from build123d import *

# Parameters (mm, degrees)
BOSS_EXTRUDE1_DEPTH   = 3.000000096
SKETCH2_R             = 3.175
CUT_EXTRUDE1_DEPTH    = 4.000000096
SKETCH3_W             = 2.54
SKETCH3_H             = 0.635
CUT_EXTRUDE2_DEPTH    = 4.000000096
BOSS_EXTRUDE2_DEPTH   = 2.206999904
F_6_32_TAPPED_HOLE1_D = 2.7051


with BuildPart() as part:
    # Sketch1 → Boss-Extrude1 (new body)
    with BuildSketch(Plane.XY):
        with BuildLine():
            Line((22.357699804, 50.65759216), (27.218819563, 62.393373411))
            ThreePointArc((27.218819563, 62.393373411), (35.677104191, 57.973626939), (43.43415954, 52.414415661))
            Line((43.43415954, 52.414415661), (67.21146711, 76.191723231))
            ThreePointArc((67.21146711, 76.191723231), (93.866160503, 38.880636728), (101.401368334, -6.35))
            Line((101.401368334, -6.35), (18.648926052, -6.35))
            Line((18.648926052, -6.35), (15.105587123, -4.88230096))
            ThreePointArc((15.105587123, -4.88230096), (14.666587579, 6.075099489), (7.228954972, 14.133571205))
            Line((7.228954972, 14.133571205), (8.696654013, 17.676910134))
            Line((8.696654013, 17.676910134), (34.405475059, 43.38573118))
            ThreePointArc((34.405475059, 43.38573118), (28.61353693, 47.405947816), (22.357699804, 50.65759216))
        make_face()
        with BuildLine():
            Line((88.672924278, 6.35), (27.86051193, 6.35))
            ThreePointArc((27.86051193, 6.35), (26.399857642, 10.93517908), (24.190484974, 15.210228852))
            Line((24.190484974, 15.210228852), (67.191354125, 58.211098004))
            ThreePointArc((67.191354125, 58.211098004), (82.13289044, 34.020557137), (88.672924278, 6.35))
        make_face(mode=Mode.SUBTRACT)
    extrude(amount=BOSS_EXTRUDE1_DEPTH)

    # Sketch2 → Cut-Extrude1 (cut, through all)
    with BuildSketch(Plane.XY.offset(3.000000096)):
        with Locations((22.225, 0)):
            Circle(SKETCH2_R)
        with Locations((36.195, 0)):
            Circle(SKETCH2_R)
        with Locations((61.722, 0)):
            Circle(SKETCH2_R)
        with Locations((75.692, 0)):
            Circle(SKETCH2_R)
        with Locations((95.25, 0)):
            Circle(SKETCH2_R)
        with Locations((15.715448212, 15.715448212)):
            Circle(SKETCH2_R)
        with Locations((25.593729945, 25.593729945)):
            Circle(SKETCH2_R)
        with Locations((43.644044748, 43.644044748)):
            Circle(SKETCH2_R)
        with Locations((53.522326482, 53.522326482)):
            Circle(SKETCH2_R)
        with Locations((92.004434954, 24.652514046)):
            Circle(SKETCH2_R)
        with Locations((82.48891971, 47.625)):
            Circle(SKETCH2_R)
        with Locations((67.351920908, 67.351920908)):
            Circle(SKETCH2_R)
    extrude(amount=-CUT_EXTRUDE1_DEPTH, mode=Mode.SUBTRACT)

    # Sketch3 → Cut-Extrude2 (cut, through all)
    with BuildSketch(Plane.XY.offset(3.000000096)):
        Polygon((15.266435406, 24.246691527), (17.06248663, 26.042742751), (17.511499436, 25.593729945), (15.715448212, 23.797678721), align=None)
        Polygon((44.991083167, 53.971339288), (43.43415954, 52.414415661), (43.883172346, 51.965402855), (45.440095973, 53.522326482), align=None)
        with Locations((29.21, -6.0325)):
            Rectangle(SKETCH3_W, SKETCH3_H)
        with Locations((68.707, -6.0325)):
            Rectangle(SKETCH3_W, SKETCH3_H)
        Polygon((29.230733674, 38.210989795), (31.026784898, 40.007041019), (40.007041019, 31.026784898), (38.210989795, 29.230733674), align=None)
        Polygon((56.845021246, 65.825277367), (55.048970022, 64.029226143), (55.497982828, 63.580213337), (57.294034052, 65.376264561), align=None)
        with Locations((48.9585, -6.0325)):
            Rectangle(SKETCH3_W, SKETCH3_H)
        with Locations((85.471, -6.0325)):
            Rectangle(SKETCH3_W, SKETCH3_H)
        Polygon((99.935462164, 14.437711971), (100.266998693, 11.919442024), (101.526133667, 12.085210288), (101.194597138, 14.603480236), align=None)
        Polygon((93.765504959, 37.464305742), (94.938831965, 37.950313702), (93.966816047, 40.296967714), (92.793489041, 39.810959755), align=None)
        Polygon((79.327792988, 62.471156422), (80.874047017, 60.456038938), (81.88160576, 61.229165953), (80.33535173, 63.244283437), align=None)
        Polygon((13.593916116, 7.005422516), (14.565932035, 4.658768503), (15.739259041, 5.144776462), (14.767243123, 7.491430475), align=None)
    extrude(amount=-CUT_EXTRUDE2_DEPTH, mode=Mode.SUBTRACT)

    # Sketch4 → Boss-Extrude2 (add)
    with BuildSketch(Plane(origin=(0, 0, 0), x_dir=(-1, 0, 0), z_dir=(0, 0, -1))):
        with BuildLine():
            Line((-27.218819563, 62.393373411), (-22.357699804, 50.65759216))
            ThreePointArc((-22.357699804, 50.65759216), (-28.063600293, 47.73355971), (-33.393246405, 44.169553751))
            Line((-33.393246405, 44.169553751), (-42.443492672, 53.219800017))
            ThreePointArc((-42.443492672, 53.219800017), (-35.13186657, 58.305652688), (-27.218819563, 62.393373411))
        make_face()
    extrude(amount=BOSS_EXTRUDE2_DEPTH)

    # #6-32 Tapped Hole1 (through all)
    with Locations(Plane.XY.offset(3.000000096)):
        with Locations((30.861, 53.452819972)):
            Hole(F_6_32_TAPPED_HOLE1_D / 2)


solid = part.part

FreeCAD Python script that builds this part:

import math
import FreeCAD as App
import Part
import Sketcher
Q = App.Units.Quantity


def add_polygon(sketch, points):
    """Adds a closed chain of lines whose ends are joined by coincident constraints."""
    first, n = sketch.GeometryCount, len(points)
    for a, b in zip(points, points[1:] + points[:1]):
        sketch.addGeometry(Part.LineSegment(App.Vector(*a, 0), App.Vector(*b, 0)), False)
    for i in range(n):
        sketch.addConstraint(Sketcher.Constraint("Coincident", first + i, 2, first + (i + 1) % n, 1))

doc = App.newDocument("Part")
body = doc.addObject("PartDesign::Body", "Body")

# Sketch on XY plane
sketch1 = body.newObject("Sketcher::SketchObject", "Sketch")
sketch1.AttachmentSupport = (doc.getObject("XY_Plane"), [""])
sketch1.MapMode = "FlatFace"
sketch1.addGeometry([
    Part.LineSegment(App.Vector(27.2, 62.4, 0), App.Vector(22.4, 50.7, 0)),  # 0
    Part.ArcOfCircle(Part.Circle(App.Vector(0, 0, 0), App.Vector(0, 0, 1), 55.4), math.radians(51.59), math.radians(66.19)),  # 1
    Part.LineSegment(App.Vector(34.4, 43.4, 0), App.Vector(8.7, 17.7, 0)),  # 2
    Part.LineSegment(App.Vector(8.7, 17.7, 0), App.Vector(7.2, 14.1, 0)),  # 3
    Part.ArcOfCircle(Part.Circle(App.Vector(0, 0, 0), App.Vector(0, 0, 1), 15.9), math.radians(-18), math.radians(63)),  # 4
    Part.LineSegment(App.Vector(15.1, -4.9, 0), App.Vector(18.6, -6.3, 0)),  # 5
    Part.LineSegment(App.Vector(18.6, -6.3, 0), App.Vector(101.4, -6.3, 0)),  # 6
    Part.ArcOfCircle(Part.Circle(App.Vector(0, 0, 0), App.Vector(0, 0, 1), 101.6), math.radians(-4), math.radians(49)),  # 7
    Part.LineSegment(App.Vector(67.2, 76.2, 0), App.Vector(43.4, 52.4, 0)),  # 8
    Part.ArcOfCircle(Part.Circle(App.Vector(0, 0, 0), App.Vector(0, 0, 1), 68.1), math.radians(50.35), math.radians(66.43)),  # 9
    Part.LineSegment(App.Vector(88.7, 6.3, 0), App.Vector(27.9, 6.3, 0)),  # 10
    Part.ArcOfCircle(Part.Circle(App.Vector(0, 0, 0), App.Vector(0, 0, 1), 28.6), math.radians(12.84), math.radians(32.16)),  # 11
    Part.LineSegment(App.Vector(24.2, 15.2, 0), App.Vector(67.2, 58.2, 0)),  # 12
    Part.ArcOfCircle(Part.Circle(App.Vector(0, 0, 0), App.Vector(0, 0, 1), 88.9), math.radians(4), math.radians(41)),  # 13
], False)
sketch1.addConstraint([
    Sketcher.Constraint("Coincident", 0, 2, 1, 2),
    Sketcher.Constraint("Coincident", 1, 1, 2, 1),
    Sketcher.Constraint("Coincident", 2, 2, 3, 1),
    Sketcher.Constraint("Coincident", 3, 2, 4, 2),
    Sketcher.Constraint("Coincident", 4, 1, 5, 1),
    Sketcher.Constraint("Coincident", 5, 2, 6, 1),
    Sketcher.Constraint("Coincident", 6, 2, 7, 1),
    Sketcher.Constraint("Coincident", 7, 2, 8, 1),
    Sketcher.Constraint("Coincident", 8, 2, 9, 1),
    Sketcher.Constraint("Coincident", 9, 2, 0, 1),
    Sketcher.Constraint("Coincident", 10, 2, 11, 1),
    Sketcher.Constraint("Coincident", 11, 2, 12, 1),
    Sketcher.Constraint("Coincident", 12, 2, 13, 2),
    Sketcher.Constraint("Coincident", 13, 1, 10, 1),
    Sketcher.Constraint("Horizontal", 6),
    Sketcher.Constraint("Horizontal", 10),
    Sketcher.Constraint("Coincident", 1, 3, -1, 1),
    Sketcher.Constraint("Coincident", 4, 3, -1, 1),
    Sketcher.Constraint("Coincident", 7, 3, -1, 1),
    Sketcher.Constraint("Coincident", 9, 3, -1, 1),
    Sketcher.Constraint("Coincident", 11, 3, -1, 1),
    Sketcher.Constraint("Coincident", 13, 3, -1, 1),
    Sketcher.Constraint("Parallel", 0, 3),
    Sketcher.Constraint("Perpendicular", 3, 5),
    Sketcher.Constraint("Parallel", 2, 8),
    Sketcher.Constraint("Parallel", 8, 12),
    Sketcher.Constraint("Equal", 3, 5),
    Sketcher.Constraint("Radius", 7, Q("4 in")),
    Sketcher.Constraint("Radius", 13, Q("3.5 in")),
    Sketcher.Constraint("Radius", 1, Q("2.18 in")),
    Sketcher.Constraint("Radius", 9, Q("2.68 in")),
    Sketcher.Constraint("Angle", 2, Q("-135 deg")),
    Sketcher.Constraint("Radius", 4, Q("0.625 in")),
    Sketcher.Constraint("Radius", 11, Q("1.125 in")),
    Sketcher.Constraint("Angle", 0, Q("-112.5 deg")),
    Sketcher.Constraint("DistanceY", 5, 2, 10, 2, Q("0.5 in")),
    Sketcher.Constraint("DistanceY", 5, 2, -1, 1, Q("0.25 in")),
    Sketcher.Constraint("DistanceX", -1, 1, 0, 2, 22.3577),
    Sketcher.Constraint("DistanceY", 4, 1, -1, 1, 4.882301),
    Sketcher.Constraint("DistanceY", -1, 1, 12, 2, 58.211098),
    Sketcher.Constraint("DistanceX", 7, 2, 6, 2, 34.189901),
    Sketcher.Constraint("DistanceY", -1, 1, 1, 1, 43.385731),
])
pad1 = body.newObject("PartDesign::Pad", "Pad")
pad1.Profile = sketch1
pad1.Length = 3

# Sketch on XY plane
sketch2 = body.newObject("Sketcher::SketchObject", "Sketch001")
sketch2.AttachmentSupport = (doc.getObject("XY_Plane"), [""])
sketch2.MapMode = "FlatFace"
sketch2.AttachmentOffset = App.Placement(App.Vector(0, 0, 3), App.Rotation())
sketch2.addGeometry([
    Part.Circle(App.Vector(22.2, 0, 0), App.Vector(0, 0, 1), 3.2),  # 0
    Part.Circle(App.Vector(36.2, 0, 0), App.Vector(0, 0, 1), 3.2),  # 1
    Part.Circle(App.Vector(61.7, 0, 0), App.Vector(0, 0, 1), 3.2),  # 2
    Part.Circle(App.Vector(75.7, 0, 0), App.Vector(0, 0, 1), 3.2),  # 3
    Part.Circle(App.Vector(95.2, 0, 0), App.Vector(0, 0, 1), 3.2),  # 4
    Part.Circle(App.Vector(15.7, 15.7, 0), App.Vector(0, 0, 1), 3.2),  # 5
    Part.Circle(App.Vector(25.6, 25.6, 0), App.Vector(0, 0, 1), 3.2),  # 6
    Part.Circle(App.Vector(43.6, 43.6, 0), App.Vector(0, 0, 1), 3.2),  # 7
    Part.Circle(App.Vector(53.5, 53.5, 0), App.Vector(0, 0, 1), 3.2),  # 8
    Part.Circle(App.Vector(92, 24.7, 0), App.Vector(0, 0, 1), 3.2),  # 9
    Part.Circle(App.Vector(82.5, 47.6, 0), App.Vector(0, 0, 1), 3.2),  # 10
    Part.Circle(App.Vector(67.4, 67.4, 0), App.Vector(0, 0, 1), 3.2),  # 11
], False)
sketch2.addConstraint([
    Sketcher.Constraint("Equal", 0, 1),
    Sketcher.Constraint("Equal", 1, 2),
    Sketcher.Constraint("Equal", 2, 3),
    Sketcher.Constraint("Equal", 3, 4),
    Sketcher.Constraint("Equal", 4, 5),
    Sketcher.Constraint("Equal", 5, 6),
    Sketcher.Constraint("Equal", 6, 7),
    Sketcher.Constraint("Equal", 7, 8),
    Sketcher.Constraint("Equal", 8, 9),
    Sketcher.Constraint("Equal", 9, 10),
    Sketcher.Constraint("Equal", 10, 11),
    Sketcher.Constraint("PointOnObject", 0, 3, -1),
    Sketcher.Constraint("PointOnObject", 1, 3, -1),
    Sketcher.Constraint("PointOnObject", 2, 3, -1),
    Sketcher.Constraint("PointOnObject", 3, 3, -1),
    Sketcher.Constraint("PointOnObject", 4, 3, -1),
    Sketcher.Constraint("Diameter", 0, Q("0.25 in")),
    Sketcher.Constraint("DistanceX", -1, 1, 2, 3, Q("2.43 in")),
    Sketcher.Constraint("DistanceX", -1, 1, 3, 3, Q("2.98 in")),
    Sketcher.Constraint("DistanceX", -1, 1, 4, 3, Q("3.75 in")),
    Sketcher.Constraint("DistanceX", 0, 3, 1, 3, Q("0.55 in")),
    Sketcher.Constraint("DistanceX", -1, 1, 0, 3, Q("0.875 in")),
    Sketcher.Constraint("DistanceY", -1, 1, 10, 3, Q("1.875 in")),
    Sketcher.Constraint("DistanceX", 11, 3, 10, 3, 15.136999),
    Sketcher.Constraint("DistanceX", -1, 1, 5, 3, 15.715448),
    Sketcher.Constraint("DistanceY", -1, 1, 5, 3, 15.715448),
    Sketcher.Constraint("DistanceX", -1, 1, 6, 3, 25.59373),
    Sketcher.Constraint("DistanceY", -1, 1, 6, 3, 25.59373),
    Sketcher.Constraint("DistanceX", -1, 1, 10, 3, 82.48892),
    Sketcher.Constraint("DistanceY", -1, 1, 11, 3, 67.351921),
    Sketcher.Constraint("DistanceX", 7, 3, 8, 3, 9.878282),
    Sketcher.Constraint("DistanceY", 7, 3, 8, 3, 9.878282),
    Sketcher.Constraint("DistanceX", 5, 3, 8, 3, 37.806878),
    Sketcher.Constraint("DistanceY", 5, 3, 8, 3, 37.806878),
    Sketcher.Constraint("DistanceX", 8, 3, 9, 3, 38.482108),
    Sketcher.Constraint("DistanceY", 9, 3, 7, 3, 18.991531),
])
pocket1 = body.newObject("PartDesign::Pocket", "Pocket")
pocket1.Profile = sketch2
pocket1.Type = "ThroughAll"

# Sketch on XY plane
sketch3 = body.newObject("Sketcher::SketchObject", "Sketch002")
sketch3.AttachmentSupport = (doc.getObject("XY_Plane"), [""])
sketch3.MapMode = "FlatFace"
sketch3.AttachmentOffset = App.Placement(App.Vector(0, 0, 3), App.Rotation())
add_polygon(sketch3, [(17.1, 26), (15.3, 24.2), (15.7, 23.8), (17.5, 25.6)])  # lines 0-3
add_polygon(sketch3, [(45, 54), (43.4, 52.4), (43.9, 52), (45.4, 53.5)])  # lines 4-7
add_polygon(sketch3, [(27.9, -5.7), (27.9, -6.3), (30.5, -6.3), (30.5, -5.7)])  # lines 8-11
add_polygon(sketch3, [(67.4, -5.7), (67.4, -6.3), (70, -6.3), (70, -5.7)])  # lines 12-15
add_polygon(sketch3, [(31, 40), (29.2, 38.2), (38.2, 29.2), (40, 31)])  # lines 16-19
add_polygon(sketch3, [(56.8, 65.8), (55, 64), (55.5, 63.6), (57.3, 65.4)])  # lines 20-23
add_polygon(sketch3, [(47.7, -5.7), (47.7, -6.3), (50.2, -6.3), (50.2, -5.7)])  # lines 24-27
add_polygon(sketch3, [(84.2, -5.7), (84.2, -6.3), (86.7, -6.3), (86.7, -5.7)])  # lines 28-31
add_polygon(sketch3, [(99.9, 14.4), (100.3, 11.9), (101.5, 12.1), (101.2, 14.6)])  # lines 32-35
add_polygon(sketch3, [(93.8, 37.5), (94.9, 38), (94, 40.3), (92.8, 39.8)])  # lines 36-39
add_polygon(sketch3, [(79.3, 62.5), (80.9, 60.5), (81.9, 61.2), (80.3, 63.2)])  # lines 40-43
add_polygon(sketch3, [(13.6, 7), (14.6, 4.7), (15.7, 5.1), (14.8, 7.5)])  # lines 44-47
sketch3.addConstraint([
    Sketcher.Constraint("Vertical", 8),
    Sketcher.Constraint("Horizontal", 9),
    Sketcher.Constraint("Vertical", 10),
    Sketcher.Constraint("Horizontal", 11),
    Sketcher.Constraint("Vertical", 12),
    Sketcher.Constraint("Horizontal", 13),
    Sketcher.Constraint("Vertical", 14),
    Sketcher.Constraint("Horizontal", 15),
    Sketcher.Constraint("Vertical", 24),
    Sketcher.Constraint("Horizontal", 25),
    Sketcher.Constraint("Vertical", 26),
    Sketcher.Constraint("Horizontal", 27),
    Sketcher.Constraint("Vertical", 28),
    Sketcher.Constraint("Horizontal", 29),
    Sketcher.Constraint("Vertical", 30),
    Sketcher.Constraint("Horizontal", 31),
    Sketcher.Constraint("Perpendicular", 0, 1),
    Sketcher.Constraint("Perpendicular", 1, 2),
    Sketcher.Constraint("Perpendicular", 2, 3),
    Sketcher.Constraint("Perpendicular", 3, 4),
    Sketcher.Constraint("Perpendicular", 4, 5),
    Sketcher.Constraint("Perpendicular", 5, 6),
    Sketcher.Constraint("Perpendicular", 6, 7),
    Sketcher.Constraint("Perpendicular", 7, 16),
    Sketcher.Constraint("Perpendicular", 16, 17),
    Sketcher.Constraint("Perpendicular", 17, 18),
    Sketcher.Constraint("Perpendicular", 18, 19),
    Sketcher.Constraint("Perpendicular", 19, 20),
    Sketcher.Constraint("Perpendicular", 20, 21),
    Sketcher.Constraint("Perpendicular", 21, 22),
    Sketcher.Constraint("Perpendicular", 22, 23),
    Sketcher.Constraint("Perpendicular", 32, 33),
    Sketcher.Constraint("Perpendicular", 33, 34),
    Sketcher.Constraint("Perpendicular", 34, 35),
    Sketcher.Constraint("Perpendicular", 36, 37),
    Sketcher.Constraint("Perpendicular", 37, 38),
    Sketcher.Constraint("Perpendicular", 38, 39),
    Sketcher.Constraint("Perpendicular", 40, 41),
    Sketcher.Constraint("Perpendicular", 41, 42),
    Sketcher.Constraint("Perpendicular", 42, 43),
    Sketcher.Constraint("Parallel", 39, 44),
    Sketcher.Constraint("Perpendicular", 44, 45),
    Sketcher.Constraint("Perpendicular", 45, 46),
    Sketcher.Constraint("Perpendicular", 46, 47),
    Sketcher.Constraint("Horizontal", 9, 2, 12, 2),
    Sketcher.Constraint("Horizontal", 11, 2, 14, 2),
    Sketcher.Constraint("Horizontal", 13, 2, 24, 2),
    Sketcher.Constraint("Horizontal", 15, 2, 26, 2),
    Sketcher.Constraint("Horizontal", 25, 2, 28, 2),
    Sketcher.Constraint("Horizontal", 27, 2, 30, 2),
    Sketcher.Constraint("Equal", 11, 13),
    Sketcher.Constraint("Equal", 15, 25),
    Sketcher.Constraint("Equal", 27, 29),
    Sketcher.Constraint("Equal", 3, 5),
    Sketcher.Constraint("Equal", 2, 16),
    Sketcher.Constraint("Equal", 18, 20),
    Sketcher.Constraint("Equal", 7, 21),
    Sketcher.Constraint("Equal", 22, 32),
    Sketcher.Constraint("Equal", 35, 36),
    Sketcher.Constraint("Equal", 34, 37),
    Sketcher.Constraint("Equal", 39, 40),
    Sketcher.Constraint("Equal", 38, 41),
    Sketcher.Constraint("Equal", 42, 44),
    Sketcher.Constraint("Equal", 43, 45),
    Sketcher.Constraint("DistanceX", 9, 1, 9, 2, Q("0.1 in")),
    Sketcher.Constraint("Angle", 0, Q("-135 deg")),
    Sketcher.Constraint("Distance", 0, Q("0.1 in")),
    Sketcher.Constraint("Distance", 17, Q("0.5 in")),
    Sketcher.Constraint("DistanceX", -1, 1, 8, 2, Q("1.1 in")),
    Sketcher.Constraint("Angle", 32, Q("-82.5 deg")),
    Sketcher.Constraint("Angle", 36, Q("22.5 deg")),
    Sketcher.Constraint("Angle", 40, Q("-52.5 deg")),
    Sketcher.Constraint("Distance", 33, Q("0.05 in")),
    Sketcher.Constraint("DistanceY", 8, 2, 8, 1, Q("0.025 in")),
    Sketcher.Constraint("DistanceY", 8, 2, -1, 1, Q("0.25 in")),
    Sketcher.Constraint("DistanceX", 13, 2, 28, 2, Q("0.56 in")),
    Sketcher.Constraint("Distance", 1, Q("0.025 in")),
    Sketcher.Constraint("DistanceX", -1, 1, 12, 2, Q("2.655 in")),
    Sketcher.Constraint("DistanceX", -1, 1, 24, 2, Q("1.8775 in")),
    Sketcher.Constraint("DistanceY", 1, 2, 17, 2, Q("0.2138998 in")),
    Sketcher.Constraint("DistanceX", -1, 1, 2, 2, 17.511499),
    Sketcher.Constraint("DistanceX", -1, 1, 32, 2, 100.266999),
    Sketcher.Constraint("DistanceX", 0, 2, 16, 2, 13.964298),
    Sketcher.Constraint("DistanceY", 6, 2, 20, 2, 10.5069),
    Sketcher.Constraint("DistanceX", 7, 2, 21, 2, 10.5069),
    Sketcher.Constraint("DistanceY", 35, 2, 36, 2, 23.512602),
    Sketcher.Constraint("DistanceX", 36, 2, 33, 2, 6.587302),
    Sketcher.Constraint("DistanceY", 37, 2, 41, 2, 20.932198),
    Sketcher.Constraint("DistanceY", 41, 2, 22, 2, 4.147099),
    Sketcher.Constraint("DistanceY", 46, 2, 2, 2, 18.102299),
    Sketcher.Constraint("DistanceY", -1, 1, 0, 2, 24.246692),
    Sketcher.Constraint("DistanceX", -1, 1, 4, 2, 43.43416),
    Sketcher.Constraint("DistanceY", -1, 1, 7, 2, 53.971339),
    Sketcher.Constraint("DistanceX", -1, 1, 20, 2, 55.04897),
    Sketcher.Constraint("DistanceX", -1, 1, 42, 2, 80.335352),
    Sketcher.Constraint("DistanceX", -1, 1, 45, 2, 15.739259),
])
pocket2 = body.newObject("PartDesign::Pocket", "Pocket001")
pocket2.Profile = sketch3
pocket2.Type = "ThroughAll"

# Sketch on XY plane
sketch4 = body.newObject("Sketcher::SketchObject", "Sketch003")
sketch4.AttachmentSupport = (doc.getObject("XY_Plane"), [""])
sketch4.MapMode = "FlatFace"
sketch4.addGeometry([
    Part.LineSegment(App.Vector(22, 51, 0), App.Vector(27, 62, 0)),
    Part.ArcOfCircle(Part.Circle(App.Vector(0, 0, 0), App.Vector(0, 0, 1), 68), math.radians(51.43), math.radians(66.43)),
    Part.LineSegment(App.Vector(42, 53, 0), App.Vector(33, 44, 0)),
    Part.ArcOfCircle(Part.Circle(App.Vector(0, 0, 0), App.Vector(0, 0, 1), 55), math.radians(52.91), math.radians(66.19)),
], False)
sketch4.addConstraint([
    Sketcher.Constraint("Coincident", 0, 2, 1, 2),
    Sketcher.Constraint("Coincident", 1, 1, 2, 1),
    Sketcher.Constraint("Coincident", 2, 2, 3, 1),
    Sketcher.Constraint("Coincident", 3, 2, 0, 1),
    Sketcher.Constraint("Coincident", 1, 3, -1, 1),
    Sketcher.Constraint("Coincident", 3, 3, -1, 1),
    Sketcher.Constraint("Radius", 1, Q("2.68 in")),
    Sketcher.Constraint("Radius", 3, Q("2.18 in")),
    Sketcher.Constraint("Angle", 2, Q("-135 deg")),
    Sketcher.Constraint("Angle", 0, Q("67.5 deg")),
    Sketcher.Constraint("DistanceY", -1, 1, 1, 1, 53.2198),
    Sketcher.Constraint("DistanceX", -1, 1, 3, 2, 22.3577),
])
pad2 = body.newObject("PartDesign::Pad", "Pad001")
pad2.Profile = sketch4
pad2.Length = 2.207
pad2.Reversed = True

# Sketch on XY plane
sketch5 = body.newObject("Sketcher::SketchObject", "Sketch004")
sketch5.AttachmentSupport = (doc.getObject("XY_Plane"), [""])
sketch5.MapMode = "FlatFace"
sketch5.AttachmentOffset = App.Placement(App.Vector(0, 0, 3), App.Rotation())
sketch5.addGeometry(Part.Circle(App.Vector(30.9, 53.5, 0), App.Vector(0, 0, 1), 1.4), False)
sketch5.addConstraint([
    Sketcher.Constraint("Diameter", 0, Q("0.1065 in")),
    Sketcher.Constraint("DistanceX", -1, 1, 0, 3, Q("1.215 in")),
    Sketcher.Constraint("DistanceY", -1, 1, 0, 3, 53.45282),
])
doc.recompute()
hole = body.newObject("PartDesign::Hole", "Hole")
hole.Profile = sketch5
hole.ThreadType = "None"
hole.Diameter = Q("0.1065 in")
hole.DepthType = "ThroughAll"

doc.recompute()
